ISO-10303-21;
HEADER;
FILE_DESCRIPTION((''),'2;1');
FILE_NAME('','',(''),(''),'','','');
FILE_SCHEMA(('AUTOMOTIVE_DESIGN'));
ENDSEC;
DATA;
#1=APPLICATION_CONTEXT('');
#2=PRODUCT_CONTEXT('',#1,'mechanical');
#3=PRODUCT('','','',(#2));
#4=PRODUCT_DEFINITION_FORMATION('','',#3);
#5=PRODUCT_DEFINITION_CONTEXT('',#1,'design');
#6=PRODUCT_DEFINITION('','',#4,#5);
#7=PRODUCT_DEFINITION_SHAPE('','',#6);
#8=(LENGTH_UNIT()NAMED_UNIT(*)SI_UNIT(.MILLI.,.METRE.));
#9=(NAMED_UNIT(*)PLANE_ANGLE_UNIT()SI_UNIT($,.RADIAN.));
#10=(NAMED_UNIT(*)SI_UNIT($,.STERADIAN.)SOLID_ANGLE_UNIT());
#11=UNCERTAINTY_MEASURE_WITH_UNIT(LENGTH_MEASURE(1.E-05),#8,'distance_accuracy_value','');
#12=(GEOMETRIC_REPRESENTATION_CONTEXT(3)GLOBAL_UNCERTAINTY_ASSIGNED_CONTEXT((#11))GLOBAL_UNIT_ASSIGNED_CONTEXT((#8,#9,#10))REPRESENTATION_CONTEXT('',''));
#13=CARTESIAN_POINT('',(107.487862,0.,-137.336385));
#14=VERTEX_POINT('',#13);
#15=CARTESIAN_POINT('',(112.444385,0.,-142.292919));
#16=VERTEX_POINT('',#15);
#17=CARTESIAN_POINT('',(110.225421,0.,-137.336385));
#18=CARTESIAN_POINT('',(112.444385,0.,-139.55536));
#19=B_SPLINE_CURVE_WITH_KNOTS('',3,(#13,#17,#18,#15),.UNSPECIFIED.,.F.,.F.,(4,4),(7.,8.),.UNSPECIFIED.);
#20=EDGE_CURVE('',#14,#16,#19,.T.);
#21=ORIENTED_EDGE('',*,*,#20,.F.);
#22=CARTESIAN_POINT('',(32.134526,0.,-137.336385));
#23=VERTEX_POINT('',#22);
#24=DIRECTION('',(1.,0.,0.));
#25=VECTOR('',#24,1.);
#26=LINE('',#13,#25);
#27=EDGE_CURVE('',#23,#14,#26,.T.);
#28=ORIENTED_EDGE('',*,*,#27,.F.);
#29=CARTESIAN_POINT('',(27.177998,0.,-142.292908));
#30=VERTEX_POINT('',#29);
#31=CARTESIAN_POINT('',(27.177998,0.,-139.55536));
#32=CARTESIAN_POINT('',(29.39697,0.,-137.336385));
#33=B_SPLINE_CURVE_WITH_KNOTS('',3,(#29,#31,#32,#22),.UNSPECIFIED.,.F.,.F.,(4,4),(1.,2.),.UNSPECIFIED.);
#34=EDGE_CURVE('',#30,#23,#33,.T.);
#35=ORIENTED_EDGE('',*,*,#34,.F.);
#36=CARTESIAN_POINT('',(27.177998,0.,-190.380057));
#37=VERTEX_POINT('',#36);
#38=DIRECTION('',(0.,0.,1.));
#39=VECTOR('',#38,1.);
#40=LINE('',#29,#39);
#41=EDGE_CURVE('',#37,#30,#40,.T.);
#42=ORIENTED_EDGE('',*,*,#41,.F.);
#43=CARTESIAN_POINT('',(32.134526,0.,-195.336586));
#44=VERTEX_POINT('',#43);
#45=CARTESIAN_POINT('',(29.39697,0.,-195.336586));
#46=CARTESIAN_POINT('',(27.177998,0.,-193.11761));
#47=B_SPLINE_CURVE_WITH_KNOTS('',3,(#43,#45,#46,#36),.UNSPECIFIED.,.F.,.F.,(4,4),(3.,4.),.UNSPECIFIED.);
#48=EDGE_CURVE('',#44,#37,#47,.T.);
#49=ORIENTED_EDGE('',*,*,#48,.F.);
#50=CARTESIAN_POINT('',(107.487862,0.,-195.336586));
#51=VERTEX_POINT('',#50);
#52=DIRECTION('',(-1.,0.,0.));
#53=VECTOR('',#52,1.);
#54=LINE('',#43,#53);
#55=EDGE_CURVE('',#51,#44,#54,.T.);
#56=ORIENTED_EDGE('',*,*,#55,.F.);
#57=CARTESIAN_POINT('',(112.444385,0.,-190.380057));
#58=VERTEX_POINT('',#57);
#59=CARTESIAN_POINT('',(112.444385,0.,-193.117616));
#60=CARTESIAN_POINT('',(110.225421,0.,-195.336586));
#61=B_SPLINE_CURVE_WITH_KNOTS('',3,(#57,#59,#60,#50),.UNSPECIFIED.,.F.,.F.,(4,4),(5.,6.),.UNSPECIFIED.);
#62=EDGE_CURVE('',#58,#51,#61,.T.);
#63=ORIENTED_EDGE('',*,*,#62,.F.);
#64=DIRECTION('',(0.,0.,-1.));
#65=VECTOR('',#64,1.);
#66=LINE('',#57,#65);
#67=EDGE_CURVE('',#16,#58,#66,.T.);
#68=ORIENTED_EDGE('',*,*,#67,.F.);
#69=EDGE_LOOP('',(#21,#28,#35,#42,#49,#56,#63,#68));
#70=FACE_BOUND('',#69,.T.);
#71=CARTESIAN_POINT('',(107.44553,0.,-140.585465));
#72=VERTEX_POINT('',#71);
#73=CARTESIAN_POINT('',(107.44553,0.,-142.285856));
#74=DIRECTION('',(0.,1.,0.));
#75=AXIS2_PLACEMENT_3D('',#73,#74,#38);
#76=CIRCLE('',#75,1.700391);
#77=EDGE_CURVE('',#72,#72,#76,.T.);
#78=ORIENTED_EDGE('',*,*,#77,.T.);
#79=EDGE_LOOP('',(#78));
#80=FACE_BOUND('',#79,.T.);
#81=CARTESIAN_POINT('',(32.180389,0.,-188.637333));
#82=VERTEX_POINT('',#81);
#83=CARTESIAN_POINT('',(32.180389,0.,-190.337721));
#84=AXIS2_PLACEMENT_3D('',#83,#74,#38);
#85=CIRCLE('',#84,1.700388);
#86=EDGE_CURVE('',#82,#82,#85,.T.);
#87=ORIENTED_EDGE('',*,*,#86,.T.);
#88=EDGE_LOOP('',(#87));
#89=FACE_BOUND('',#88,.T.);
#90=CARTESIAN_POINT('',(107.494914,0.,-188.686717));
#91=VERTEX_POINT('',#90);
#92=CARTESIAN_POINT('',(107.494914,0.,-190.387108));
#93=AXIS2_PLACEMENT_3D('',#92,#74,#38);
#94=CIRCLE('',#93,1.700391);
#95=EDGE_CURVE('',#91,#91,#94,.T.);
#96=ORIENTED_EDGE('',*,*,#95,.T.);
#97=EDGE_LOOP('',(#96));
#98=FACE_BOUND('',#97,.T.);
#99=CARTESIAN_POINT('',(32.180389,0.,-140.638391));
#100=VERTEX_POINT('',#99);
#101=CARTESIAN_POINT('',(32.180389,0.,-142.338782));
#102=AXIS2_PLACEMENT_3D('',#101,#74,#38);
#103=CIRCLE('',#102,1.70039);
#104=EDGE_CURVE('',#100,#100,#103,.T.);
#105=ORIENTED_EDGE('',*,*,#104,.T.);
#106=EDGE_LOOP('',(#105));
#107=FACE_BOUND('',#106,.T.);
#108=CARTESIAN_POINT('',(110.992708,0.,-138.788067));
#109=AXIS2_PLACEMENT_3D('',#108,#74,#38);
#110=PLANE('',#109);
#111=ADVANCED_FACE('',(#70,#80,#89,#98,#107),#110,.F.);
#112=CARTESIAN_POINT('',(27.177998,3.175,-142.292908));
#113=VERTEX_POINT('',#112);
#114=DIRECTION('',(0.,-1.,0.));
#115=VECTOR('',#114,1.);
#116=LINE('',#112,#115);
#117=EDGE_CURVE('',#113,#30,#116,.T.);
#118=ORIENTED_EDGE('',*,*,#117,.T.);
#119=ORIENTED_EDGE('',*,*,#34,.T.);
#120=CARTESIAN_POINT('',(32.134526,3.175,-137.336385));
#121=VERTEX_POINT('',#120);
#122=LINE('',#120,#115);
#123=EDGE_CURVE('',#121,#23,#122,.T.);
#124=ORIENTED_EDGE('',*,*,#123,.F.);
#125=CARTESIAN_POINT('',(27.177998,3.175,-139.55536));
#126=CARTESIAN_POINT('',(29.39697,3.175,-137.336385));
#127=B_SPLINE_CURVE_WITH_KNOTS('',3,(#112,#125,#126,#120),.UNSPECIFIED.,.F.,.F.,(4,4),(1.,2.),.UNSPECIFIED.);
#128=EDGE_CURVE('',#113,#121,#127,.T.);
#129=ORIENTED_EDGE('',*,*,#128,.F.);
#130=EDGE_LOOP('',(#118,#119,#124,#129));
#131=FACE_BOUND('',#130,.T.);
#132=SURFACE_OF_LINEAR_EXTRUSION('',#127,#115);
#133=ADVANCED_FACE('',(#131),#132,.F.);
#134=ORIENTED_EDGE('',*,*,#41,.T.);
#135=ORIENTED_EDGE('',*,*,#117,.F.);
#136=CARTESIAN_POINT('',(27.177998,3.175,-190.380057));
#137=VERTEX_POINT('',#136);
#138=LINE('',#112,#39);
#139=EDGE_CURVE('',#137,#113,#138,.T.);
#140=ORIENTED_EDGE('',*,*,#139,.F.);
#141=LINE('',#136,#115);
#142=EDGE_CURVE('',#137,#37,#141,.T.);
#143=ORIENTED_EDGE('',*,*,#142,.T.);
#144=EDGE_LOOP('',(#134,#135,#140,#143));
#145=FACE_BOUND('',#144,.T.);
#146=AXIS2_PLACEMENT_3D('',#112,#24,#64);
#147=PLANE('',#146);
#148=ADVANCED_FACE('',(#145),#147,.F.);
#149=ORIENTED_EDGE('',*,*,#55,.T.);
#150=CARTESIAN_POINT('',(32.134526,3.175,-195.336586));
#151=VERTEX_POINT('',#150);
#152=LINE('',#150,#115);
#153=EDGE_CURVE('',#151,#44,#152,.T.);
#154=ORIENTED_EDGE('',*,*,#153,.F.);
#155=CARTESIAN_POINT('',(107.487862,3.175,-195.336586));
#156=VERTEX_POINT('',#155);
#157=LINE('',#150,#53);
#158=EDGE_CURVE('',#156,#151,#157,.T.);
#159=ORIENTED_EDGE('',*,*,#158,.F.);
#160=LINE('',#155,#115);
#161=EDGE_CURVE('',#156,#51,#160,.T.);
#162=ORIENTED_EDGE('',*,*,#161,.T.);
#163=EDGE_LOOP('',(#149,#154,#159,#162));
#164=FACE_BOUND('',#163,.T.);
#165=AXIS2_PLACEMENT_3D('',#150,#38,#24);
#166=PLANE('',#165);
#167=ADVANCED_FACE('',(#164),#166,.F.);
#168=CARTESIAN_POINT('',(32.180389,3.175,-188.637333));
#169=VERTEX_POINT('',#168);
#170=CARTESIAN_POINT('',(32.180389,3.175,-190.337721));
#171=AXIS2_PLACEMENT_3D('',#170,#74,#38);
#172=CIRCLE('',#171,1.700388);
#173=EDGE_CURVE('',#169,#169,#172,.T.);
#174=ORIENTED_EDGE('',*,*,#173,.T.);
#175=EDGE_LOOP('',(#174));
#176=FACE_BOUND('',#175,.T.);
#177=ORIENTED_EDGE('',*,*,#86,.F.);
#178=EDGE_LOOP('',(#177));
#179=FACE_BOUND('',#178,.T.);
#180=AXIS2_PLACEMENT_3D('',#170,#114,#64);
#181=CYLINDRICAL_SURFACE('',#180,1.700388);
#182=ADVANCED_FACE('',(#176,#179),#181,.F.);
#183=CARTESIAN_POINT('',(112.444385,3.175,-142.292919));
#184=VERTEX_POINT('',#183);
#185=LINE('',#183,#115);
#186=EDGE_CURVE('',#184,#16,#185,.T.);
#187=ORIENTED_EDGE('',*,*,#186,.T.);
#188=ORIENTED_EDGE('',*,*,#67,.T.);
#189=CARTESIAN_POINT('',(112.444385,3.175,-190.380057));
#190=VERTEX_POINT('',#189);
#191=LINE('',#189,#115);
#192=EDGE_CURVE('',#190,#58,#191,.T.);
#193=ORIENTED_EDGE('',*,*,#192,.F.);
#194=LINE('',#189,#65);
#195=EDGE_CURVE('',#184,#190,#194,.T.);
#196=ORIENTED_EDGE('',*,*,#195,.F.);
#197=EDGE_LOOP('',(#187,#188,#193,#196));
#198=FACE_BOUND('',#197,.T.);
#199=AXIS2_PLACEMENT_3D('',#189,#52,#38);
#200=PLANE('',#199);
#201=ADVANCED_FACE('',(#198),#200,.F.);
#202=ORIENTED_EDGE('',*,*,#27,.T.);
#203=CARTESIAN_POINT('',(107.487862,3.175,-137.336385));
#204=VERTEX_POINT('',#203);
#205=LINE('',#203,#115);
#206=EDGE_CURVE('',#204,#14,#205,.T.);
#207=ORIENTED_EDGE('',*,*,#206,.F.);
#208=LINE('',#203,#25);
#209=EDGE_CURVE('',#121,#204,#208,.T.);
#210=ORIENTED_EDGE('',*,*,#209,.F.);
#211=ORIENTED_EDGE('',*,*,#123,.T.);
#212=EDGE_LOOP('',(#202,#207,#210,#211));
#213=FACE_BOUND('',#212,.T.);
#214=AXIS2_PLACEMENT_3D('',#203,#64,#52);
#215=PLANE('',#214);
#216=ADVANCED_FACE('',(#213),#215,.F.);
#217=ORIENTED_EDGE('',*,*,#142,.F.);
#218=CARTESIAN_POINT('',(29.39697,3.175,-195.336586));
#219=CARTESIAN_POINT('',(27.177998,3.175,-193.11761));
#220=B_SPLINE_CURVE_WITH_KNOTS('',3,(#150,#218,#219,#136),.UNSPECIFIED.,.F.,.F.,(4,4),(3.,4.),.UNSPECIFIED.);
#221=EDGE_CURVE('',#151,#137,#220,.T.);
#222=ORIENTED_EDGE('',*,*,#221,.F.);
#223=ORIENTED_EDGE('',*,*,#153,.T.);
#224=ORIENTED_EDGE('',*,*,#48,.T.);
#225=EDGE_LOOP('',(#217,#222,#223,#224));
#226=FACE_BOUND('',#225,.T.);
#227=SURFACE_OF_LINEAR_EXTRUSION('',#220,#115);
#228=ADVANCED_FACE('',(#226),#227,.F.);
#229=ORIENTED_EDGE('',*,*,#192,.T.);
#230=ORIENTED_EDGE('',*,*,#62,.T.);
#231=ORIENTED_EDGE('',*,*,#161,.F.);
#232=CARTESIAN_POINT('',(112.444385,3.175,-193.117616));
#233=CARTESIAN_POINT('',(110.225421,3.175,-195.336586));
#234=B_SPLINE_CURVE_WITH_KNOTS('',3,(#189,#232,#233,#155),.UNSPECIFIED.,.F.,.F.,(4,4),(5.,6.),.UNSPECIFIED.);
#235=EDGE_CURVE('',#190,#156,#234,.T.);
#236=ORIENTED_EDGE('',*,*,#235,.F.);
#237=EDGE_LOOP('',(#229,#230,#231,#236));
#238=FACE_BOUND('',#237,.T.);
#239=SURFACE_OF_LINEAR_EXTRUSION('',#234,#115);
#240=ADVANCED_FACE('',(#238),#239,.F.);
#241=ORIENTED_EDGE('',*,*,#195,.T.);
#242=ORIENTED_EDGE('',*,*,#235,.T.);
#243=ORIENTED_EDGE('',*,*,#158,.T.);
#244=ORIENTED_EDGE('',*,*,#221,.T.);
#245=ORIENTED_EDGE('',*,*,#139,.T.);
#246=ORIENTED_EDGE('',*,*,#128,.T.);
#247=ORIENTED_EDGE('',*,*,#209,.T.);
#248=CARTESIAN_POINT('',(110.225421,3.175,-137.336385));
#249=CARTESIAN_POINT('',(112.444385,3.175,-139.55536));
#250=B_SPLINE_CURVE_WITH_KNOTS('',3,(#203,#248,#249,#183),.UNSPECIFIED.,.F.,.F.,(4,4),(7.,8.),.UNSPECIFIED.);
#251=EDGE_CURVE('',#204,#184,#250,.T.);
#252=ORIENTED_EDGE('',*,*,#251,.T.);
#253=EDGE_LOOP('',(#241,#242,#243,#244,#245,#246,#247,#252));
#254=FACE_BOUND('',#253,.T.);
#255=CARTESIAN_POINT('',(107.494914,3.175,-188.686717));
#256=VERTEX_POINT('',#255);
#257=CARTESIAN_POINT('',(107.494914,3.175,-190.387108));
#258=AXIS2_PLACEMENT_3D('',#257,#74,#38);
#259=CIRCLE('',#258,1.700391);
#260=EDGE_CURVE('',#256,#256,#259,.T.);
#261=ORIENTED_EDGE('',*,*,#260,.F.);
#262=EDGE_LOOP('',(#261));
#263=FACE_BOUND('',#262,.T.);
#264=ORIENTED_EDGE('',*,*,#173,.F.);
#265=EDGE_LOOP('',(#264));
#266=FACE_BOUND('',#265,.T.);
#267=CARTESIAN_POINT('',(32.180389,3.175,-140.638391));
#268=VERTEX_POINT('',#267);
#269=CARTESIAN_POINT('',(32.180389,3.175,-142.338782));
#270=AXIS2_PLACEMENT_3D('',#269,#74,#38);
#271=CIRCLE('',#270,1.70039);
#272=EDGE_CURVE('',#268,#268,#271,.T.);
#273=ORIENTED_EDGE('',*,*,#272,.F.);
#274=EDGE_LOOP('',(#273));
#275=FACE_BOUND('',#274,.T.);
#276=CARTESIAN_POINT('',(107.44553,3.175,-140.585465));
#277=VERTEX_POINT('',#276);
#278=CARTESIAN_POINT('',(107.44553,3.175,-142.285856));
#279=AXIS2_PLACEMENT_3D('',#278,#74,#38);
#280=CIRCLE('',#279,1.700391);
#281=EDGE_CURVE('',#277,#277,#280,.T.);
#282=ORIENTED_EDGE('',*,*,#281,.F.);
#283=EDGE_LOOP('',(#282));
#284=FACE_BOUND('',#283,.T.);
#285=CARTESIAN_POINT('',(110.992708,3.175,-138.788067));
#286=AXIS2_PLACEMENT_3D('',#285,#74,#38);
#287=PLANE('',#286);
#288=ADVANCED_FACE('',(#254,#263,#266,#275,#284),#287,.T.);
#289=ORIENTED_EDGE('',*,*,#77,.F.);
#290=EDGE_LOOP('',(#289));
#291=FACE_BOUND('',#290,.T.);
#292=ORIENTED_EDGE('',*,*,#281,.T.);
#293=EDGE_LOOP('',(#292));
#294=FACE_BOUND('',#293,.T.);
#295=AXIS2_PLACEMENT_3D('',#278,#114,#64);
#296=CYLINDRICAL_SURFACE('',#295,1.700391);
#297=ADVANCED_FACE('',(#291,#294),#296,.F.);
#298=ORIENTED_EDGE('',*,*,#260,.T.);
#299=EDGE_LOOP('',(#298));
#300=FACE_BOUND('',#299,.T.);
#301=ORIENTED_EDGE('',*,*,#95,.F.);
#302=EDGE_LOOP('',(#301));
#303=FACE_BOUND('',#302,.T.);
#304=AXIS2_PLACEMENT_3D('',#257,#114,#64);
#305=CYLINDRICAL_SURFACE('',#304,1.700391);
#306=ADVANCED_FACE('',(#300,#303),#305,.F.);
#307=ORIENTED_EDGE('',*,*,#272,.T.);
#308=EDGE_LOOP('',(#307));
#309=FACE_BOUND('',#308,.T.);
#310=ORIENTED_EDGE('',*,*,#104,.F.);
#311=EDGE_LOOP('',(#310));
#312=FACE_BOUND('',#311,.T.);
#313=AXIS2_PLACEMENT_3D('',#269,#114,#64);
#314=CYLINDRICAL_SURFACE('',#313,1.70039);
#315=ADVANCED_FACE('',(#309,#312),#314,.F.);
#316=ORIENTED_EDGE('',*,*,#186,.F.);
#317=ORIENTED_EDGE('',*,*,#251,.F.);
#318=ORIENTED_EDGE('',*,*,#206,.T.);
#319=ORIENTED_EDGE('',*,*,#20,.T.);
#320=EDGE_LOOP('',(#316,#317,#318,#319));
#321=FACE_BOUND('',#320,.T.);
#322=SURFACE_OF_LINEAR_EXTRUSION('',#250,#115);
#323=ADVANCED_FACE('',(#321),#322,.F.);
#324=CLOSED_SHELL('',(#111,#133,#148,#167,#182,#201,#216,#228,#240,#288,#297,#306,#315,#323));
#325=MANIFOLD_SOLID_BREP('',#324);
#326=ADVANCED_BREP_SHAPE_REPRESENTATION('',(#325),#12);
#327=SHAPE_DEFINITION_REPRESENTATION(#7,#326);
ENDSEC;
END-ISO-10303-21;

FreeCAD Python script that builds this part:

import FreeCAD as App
import Part
import Sketcher

V = App.Vector
Q = App.Units.Quantity

doc = App.newDocument("Part")
body = doc.addObject("PartDesign::Body", "Body")

# Sketch on XZ plane
sketch1 = doc.addObject("Sketcher::SketchObject", "Sketch")
body.addObject(sketch1)
sketch1.AttachmentSupport = (doc.XZ_Plane, [""])
sketch1.MapMode = "FlatFace"
sketch1.addGeometry(Part.LineSegment(V(32.134526, -137.336385, 0), V(107.487862, -137.336385, 0)), False)
sketch1.addGeometry(Part.BSplineCurve([V(112.444385, -142.292919, 0), V(112.444385, -139.55536, 0), V(110.225421, -137.336385, 0), V(107.487862, -137.336385, 0)], [4, 4], [7, 8], False, 3, [1, 1, 1, 1], False), False)
sketch1.addGeometry(Part.LineSegment(V(112.444385, -142.292919, 0), V(112.444385, -190.380057, 0)), False)
sketch1.addGeometry(Part.BSplineCurve([V(107.487862, -195.336586, 0), V(110.225421, -195.336586, 0), V(112.444385, -193.117616, 0), V(112.444385, -190.380057, 0)], [4, 4], [5, 6], False, 3, [1, 1, 1, 1], False), False)
sketch1.addGeometry(Part.LineSegment(V(107.487862, -195.336586, 0), V(32.134526, -195.336586, 0)), False)
sketch1.addGeometry(Part.BSplineCurve([V(27.177998, -190.380057, 0), V(27.177998, -193.11761, 0), V(29.39697, -195.336586, 0), V(32.134526, -195.336586, 0)], [4, 4], [3, 4], False, 3, [1, 1, 1, 1], False), False)
sketch1.addGeometry(Part.LineSegment(V(27.177998, -190.380057, 0), V(27.177998, -142.292908, 0)), False)
sketch1.addGeometry(Part.BSplineCurve([V(32.134526, -137.336385, 0), V(29.39697, -137.336385, 0), V(27.177998, -139.55536, 0), V(27.177998, -142.292908, 0)], [4, 4], [1, 2], False, 3, [1, 1, 1, 1], False), False)
sketch1.addGeometry(Part.Circle(V(107.44553, -142.285856, 0), V(0, 0, 1), 1.700391), False)
sketch1.addGeometry(Part.Circle(V(32.180389, -142.338782, 0), V(0, 0, 1), 1.70039), False)
sketch1.addGeometry(Part.Circle(V(107.494914, -190.387108, 0), V(0, 0, 1), 1.700391), False)
sketch1.addGeometry(Part.Circle(V(32.180389, -190.337721, 0), V(0, 0, 1), 1.700388), False)
sketch1.addConstraint(Sketcher.Constraint("Block", 1))
sketch1.addConstraint(Sketcher.Constraint("Block", 3))
sketch1.addConstraint(Sketcher.Constraint("Block", 5))
sketch1.addConstraint(Sketcher.Constraint("Block", 7))
sketch1.addConstraint(Sketcher.Constraint("Coincident", 0, 2, 1, 2))
sketch1.addConstraint(Sketcher.Constraint("Coincident", 1, 1, 2, 1))
sketch1.addConstraint(Sketcher.Constraint("Coincident", 2, 2, 3, 2))
sketch1.addConstraint(Sketcher.Constraint("Coincident", 3, 1, 4, 1))
sketch1.addConstraint(Sketcher.Constraint("Coincident", 4, 2, 5, 2))
sketch1.addConstraint(Sketcher.Constraint("Coincident", 5, 1, 6, 1))
sketch1.addConstraint(Sketcher.Constraint("Coincident", 6, 2, 7, 2))
sketch1.addConstraint(Sketcher.Constraint("Coincident", 7, 1, 0, 1))
sketch1.addConstraint(Sketcher.Constraint("Equal", 8, 9))
sketch1.addConstraint(Sketcher.Constraint("Equal", 9, 10))
sketch1.addConstraint(Sketcher.Constraint("Vertical", 9, 3, 11, 3))
sketch1.addConstraint(Sketcher.Constraint("DistanceX", 11, 3, 2, 2, Q("3.1599998 in")))
sketch1.addConstraint(Sketcher.Constraint("Diameter", 9, Q("3.40078 mm")))
sketch1.addConstraint(Sketcher.Constraint("DistanceX", 4, 2, 8, 3, Q("2.9650002 in")))
sketch1.addConstraint(Sketcher.Constraint("Diameter", 11, Q("3.400776 mm")))
sketch1.addConstraint(Sketcher.Constraint("DistanceY", 2, 2, 8, 3, Q("48.0942 mm")))
sketch1.addConstraint(Sketcher.Constraint("DistanceY", 9, 3, -1, 1, Q("142.338782 mm")))
sketch1.addConstraint(Sketcher.Constraint("DistanceY", 10, 3, -1, 1, Q("190.387108 mm")))
sketch1.addConstraint(Sketcher.Constraint("DistanceY", 11, 3, -1, 1, Q("190.337721 mm")))
sketch1.addConstraint(Sketcher.Constraint("DistanceX", 0, 2, 10, 3, Q("0.007052 mm")))
pad1 = doc.addObject("PartDesign::Pad", "Pad")
body.addObject(pad1)
pad1.Profile = sketch1
pad1.Length = Q("0.125 in")
pad1.Reversed = True

doc.recompute()
